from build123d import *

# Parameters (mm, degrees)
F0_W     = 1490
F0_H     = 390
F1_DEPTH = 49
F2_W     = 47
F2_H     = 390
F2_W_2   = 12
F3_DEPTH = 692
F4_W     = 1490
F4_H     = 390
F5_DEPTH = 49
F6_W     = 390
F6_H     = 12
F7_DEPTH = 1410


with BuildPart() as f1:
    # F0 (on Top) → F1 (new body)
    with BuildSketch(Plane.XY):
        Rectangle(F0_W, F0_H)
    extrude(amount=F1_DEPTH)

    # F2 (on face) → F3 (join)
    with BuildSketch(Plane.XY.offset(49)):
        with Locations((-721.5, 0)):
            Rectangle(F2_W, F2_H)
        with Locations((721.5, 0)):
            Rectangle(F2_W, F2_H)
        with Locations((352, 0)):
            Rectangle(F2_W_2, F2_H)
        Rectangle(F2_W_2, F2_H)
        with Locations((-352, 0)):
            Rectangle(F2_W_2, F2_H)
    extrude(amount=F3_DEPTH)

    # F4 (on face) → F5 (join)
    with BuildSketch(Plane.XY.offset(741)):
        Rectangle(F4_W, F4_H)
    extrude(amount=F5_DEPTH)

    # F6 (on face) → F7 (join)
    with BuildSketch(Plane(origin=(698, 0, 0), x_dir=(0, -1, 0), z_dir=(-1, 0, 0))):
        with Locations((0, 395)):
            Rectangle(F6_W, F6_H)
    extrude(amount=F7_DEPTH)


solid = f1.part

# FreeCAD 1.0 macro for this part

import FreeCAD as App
import Part
import Sketcher

doc = App.newDocument("Part")
body = doc.addObject("PartDesign::Body", "Body")

# Sketch on XY plane
sketch1 = body.newObject("Sketcher::SketchObject", "Sketch")
sketch1.AttachmentSupport = (doc.getObject("XY_Plane"), [""])
sketch1.MapMode = "FlatFace"
sketch1.addGeometry([
    Part.LineSegment(App.Vector(-745, 195, 0), App.Vector(-745, -195, 0)),
    Part.LineSegment(App.Vector(-745, -195, 0), App.Vector(745, -195, 0)),
    Part.LineSegment(App.Vector(745, -195, 0), App.Vector(745, 195, 0)),
    Part.LineSegment(App.Vector(745, 195, 0), App.Vector(-745, 195, 0)),
], False)
sketch1.addConstraint([
    Sketcher.Constraint("Coincident", 0, 2, 1, 1),
    Sketcher.Constraint("Coincident", 1, 2, 2, 1),
    Sketcher.Constraint("Coincident", 2, 2, 3, 1),
    Sketcher.Constraint("Coincident", 3, 2, 0, 1),
    Sketcher.Constraint("Vertical", 0),
    Sketcher.Constraint("Horizontal", 1),
    Sketcher.Constraint("Vertical", 2),
    Sketcher.Constraint("Horizontal", 3),
    Sketcher.Constraint("Symmetric", 0, 2, 2, 2, -1, 1),
    Sketcher.Constraint("DistanceX", 1, 1, 1, 2, 1490.0),
    Sketcher.Constraint("DistanceY", 0, 2, 0, 1, 390.0),
])
pad1 = body.newObject("PartDesign::Pad", "Pad")
pad1.Profile = sketch1
pad1.Length = 49

# Sketch on XY plane
sketch2 = body.newObject("Sketcher::SketchObject", "Sketch001")
sketch2.AttachmentSupport = (doc.getObject("XY_Plane"), [""])
sketch2.MapMode = "FlatFace"
sketch2.AttachmentOffset = App.Placement(App.Vector(0, 0, 49), App.Rotation())
sketch2.addGeometry([
    Part.LineSegment(App.Vector(-745, 195, 0), App.Vector(-745, -195, 0)),  # 0
    Part.LineSegment(App.Vector(-745, -195, 0), App.Vector(-698, -195, 0)),  # 1
    Part.LineSegment(App.Vector(-698, -195, 0), App.Vector(-698, 195, 0)),  # 2
    Part.LineSegment(App.Vector(-698, 195, 0), App.Vector(-745, 195, 0)),  # 3
    Part.LineSegment(App.Vector(698, 195, 0), App.Vector(698, -195, 0)),  # 4
    Part.LineSegment(App.Vector(698, -195, 0), App.Vector(745, -195, 0)),  # 5
    Part.LineSegment(App.Vector(745, -195, 0), App.Vector(745, 195, 0)),  # 6
    Part.LineSegment(App.Vector(745, 195, 0), App.Vector(698, 195, 0)),  # 7
    Part.LineSegment(App.Vector(346, 195, 0), App.Vector(346, -195, 0)),  # 8
    Part.LineSegment(App.Vector(346, -195, 0), App.Vector(358, -195, 0)),  # 9
    Part.LineSegment(App.Vector(358, -195, 0), App.Vector(358, 195, 0)),  # 10
    Part.LineSegment(App.Vector(358, 195, 0), App.Vector(346, 195, 0)),  # 11
    Part.LineSegment(App.Vector(-6, 195, 0), App.Vector(-6, -195, 0)),  # 12
    Part.LineSegment(App.Vector(-6, -195, 0), App.Vector(6, -195, 0)),  # 13
    Part.LineSegment(App.Vector(6, -195, 0), App.Vector(6, 195, 0)),  # 14
    Part.LineSegment(App.Vector(6, 195, 0), App.Vector(-6, 195, 0)),  # 15
    Part.LineSegment(App.Vector(-358, 195, 0), App.Vector(-358, -195, 0)),  # 16
    Part.LineSegment(App.Vector(-358, -195, 0), App.Vector(-346, -195, 0)),  # 17
    Part.LineSegment(App.Vector(-346, -195, 0), App.Vector(-346, 195, 0)),  # 18
    Part.LineSegment(App.Vector(-346, 195, 0), App.Vector(-358, 195, 0)),  # 19
], False)
sketch2.addConstraint([
    Sketcher.Constraint("Coincident", 0, 2, 1, 1),
    Sketcher.Constraint("Coincident", 1, 2, 2, 1),
    Sketcher.Constraint("Coincident", 2, 2, 3, 1),
    Sketcher.Constraint("Coincident", 3, 2, 0, 1),
    Sketcher.Constraint("Coincident", 4, 2, 5, 1),
    Sketcher.Constraint("Coincident", 5, 2, 6, 1),
    Sketcher.Constraint("Coincident", 6, 2, 7, 1),
    Sketcher.Constraint("Coincident", 7, 2, 4, 1),
    Sketcher.Constraint("Coincident", 8, 2, 9, 1),
    Sketcher.Constraint("Coincident", 9, 2, 10, 1),
    Sketcher.Constraint("Coincident", 10, 2, 11, 1),
    Sketcher.Constraint("Coincident", 11, 2, 8, 1),
    Sketcher.Constraint("Coincident", 12, 2, 13, 1),
    Sketcher.Constraint("Coincident", 13, 2, 14, 1),
    Sketcher.Constraint("Coincident", 14, 2, 15, 1),
    Sketcher.Constraint("Coincident", 15, 2, 12, 1),
    Sketcher.Constraint("Coincident", 16, 2, 17, 1),
    Sketcher.Constraint("Coincident", 17, 2, 18, 1),
    Sketcher.Constraint("Coincident", 18, 2, 19, 1),
    Sketcher.Constraint("Coincident", 19, 2, 16, 1),
    Sketcher.Constraint("Vertical", 0),
    Sketcher.Constraint("Horizontal", 1),
    Sketcher.Constraint("Vertical", 2),
    Sketcher.Constraint("Horizontal", 3),
    Sketcher.Constraint("Vertical", 4),
    Sketcher.Constraint("Horizontal", 5),
    Sketcher.Constraint("Vertical", 6),
    Sketcher.Constraint("Horizontal", 7),
    Sketcher.Constraint("Vertical", 8),
    Sketcher.Constraint("Horizontal", 9),
    Sketcher.Constraint("Vertical", 10),
    Sketcher.Constraint("Horizontal", 11),
    Sketcher.Constraint("Vertical", 12),
    Sketcher.Constraint("Horizontal", 13),
    Sketcher.Constraint("Vertical", 14),
    Sketcher.Constraint("Horizontal", 15),
    Sketcher.Constraint("Vertical", 16),
    Sketcher.Constraint("Horizontal", 17),
    Sketcher.Constraint("Vertical", 18),
    Sketcher.Constraint("Horizontal", 19),
    Sketcher.Constraint("Symmetric", 2, 2, 4, 2, -1, 1),
    Sketcher.Constraint("Symmetric", 0, 2, 6, 2, -1, 1),
    Sketcher.Constraint("Symmetric", 12, 2, 14, 2, -1, 1),
    Sketcher.Constraint("Symmetric", 10, 2, 16, 2, -1, 1),
    Sketcher.Constraint("Symmetric", 8, 2, 18, 2, -1, 1),
    Sketcher.Constraint("Horizontal", 1, 2, 4, 2),
    Sketcher.Constraint("Horizontal", 5, 2, 8, 2),
    Sketcher.Constraint("Horizontal", 7, 2, 10, 2),
    Sketcher.Constraint("Horizontal", 9, 2, 12, 2),
    Sketcher.Constraint("Equal", 11, 13),
    Sketcher.Constraint("DistanceX", 1, 1, 1, 2, 47.0),
    Sketcher.Constraint("DistanceX", 9, 1, 9, 2, 12.0),
    Sketcher.Constraint("DistanceY", 0, 2, 0, 1, 390.0),
    Sketcher.Constraint("DistanceX", 0, 2, -1, 1, 745.0),
    Sketcher.Constraint("DistanceX", -1, 1, 8, 2, 346.0),
])
pad2 = body.newObject("PartDesign::Pad", "Pad001")
pad2.Profile = sketch2
pad2.Length = 692

# Sketch on XY plane
sketch3 = body.newObject("Sketcher::SketchObject", "Sketch002")
sketch3.AttachmentSupport = (doc.getObject("XY_Plane"), [""])
sketch3.MapMode = "FlatFace"
sketch3.AttachmentOffset = App.Placement(App.Vector(0, 0, 741), App.Rotation())
sketch3.addGeometry([
    Part.LineSegment(App.Vector(-745, 195, 0), App.Vector(-745, -195, 0)),
    Part.LineSegment(App.Vector(-745, -195, 0), App.Vector(745, -195, 0)),
    Part.LineSegment(App.Vector(745, -195, 0), App.Vector(745, 195, 0)),
    Part.LineSegment(App.Vector(745, 195, 0), App.Vector(-745, 195, 0)),
], False)
sketch3.addConstraint([
    Sketcher.Constraint("Coincident", 0, 2, 1, 1),
    Sketcher.Constraint("Coincident", 1, 2, 2, 1),
    Sketcher.Constraint("Coincident", 2, 2, 3, 1),
    Sketcher.Constraint("Coincident", 3, 2, 0, 1),
    Sketcher.Constraint("Vertical", 0),
    Sketcher.Constraint("Horizontal", 1),
    Sketcher.Constraint("Vertical", 2),
    Sketcher.Constraint("Horizontal", 3),
    Sketcher.Constraint("Symmetric", 0, 2, 2, 2, -1, 1),
    Sketcher.Constraint("DistanceX", 1, 1, 1, 2, 1490.0),
    Sketcher.Constraint("DistanceY", 0, 2, 0, 1, 390.0),
])
pad3 = body.newObject("PartDesign::Pad", "Pad002")
pad3.Profile = sketch3
pad3.Length = 49

# Sketch on YZ plane
sketch4 = body.newObject("Sketcher::SketchObject", "Sketch003")
sketch4.AttachmentSupport = (doc.getObject("YZ_Plane"), [""])
sketch4.MapMode = "FlatFace"
sketch4.AttachmentOffset = App.Placement(App.Vector(0, 0, 698), App.Rotation())
sketch4.addGeometry([
    Part.LineSegment(App.Vector(195, 401, 0), App.Vector(195, 389, 0)),
    Part.LineSegment(App.Vector(195, 389, 0), App.Vector(-195, 389, 0)),
    Part.LineSegment(App.Vector(-195, 389, 0), App.Vector(-195, 401, 0)),
    Part.LineSegment(App.Vector(-195, 401, 0), App.Vector(195, 401, 0)),
], False)
sketch4.addConstraint([
    Sketcher.Constraint("Coincident", 0, 2, 1, 1),
    Sketcher.Constraint("Coincident", 1, 2, 2, 1),
    Sketcher.Constraint("Coincident", 2, 2, 3, 1),
    Sketcher.Constraint("Coincident", 3, 2, 0, 1),
    Sketcher.Constraint("Vertical", 0),
    Sketcher.Constraint("Horizontal", 1),
    Sketcher.Constraint("Vertical", 2),
    Sketcher.Constraint("Horizontal", 3),
    Sketcher.Constraint("DistanceX", 1, 2, 1, 1, 390.0),
    Sketcher.Constraint("DistanceY", 0, 2, 0, 1, 12.0),
    Sketcher.Constraint("DistanceX", -1, 1, 0, 2, 195.0),
    Sketcher.Constraint("DistanceY", -1, 1, 0, 2, 389.0),
])
pad4 = body.newObject("PartDesign::Pad", "Pad003")
pad4.Profile = sketch4
pad4.Length = 1410
pad4.Reversed = True

doc.recompute()
